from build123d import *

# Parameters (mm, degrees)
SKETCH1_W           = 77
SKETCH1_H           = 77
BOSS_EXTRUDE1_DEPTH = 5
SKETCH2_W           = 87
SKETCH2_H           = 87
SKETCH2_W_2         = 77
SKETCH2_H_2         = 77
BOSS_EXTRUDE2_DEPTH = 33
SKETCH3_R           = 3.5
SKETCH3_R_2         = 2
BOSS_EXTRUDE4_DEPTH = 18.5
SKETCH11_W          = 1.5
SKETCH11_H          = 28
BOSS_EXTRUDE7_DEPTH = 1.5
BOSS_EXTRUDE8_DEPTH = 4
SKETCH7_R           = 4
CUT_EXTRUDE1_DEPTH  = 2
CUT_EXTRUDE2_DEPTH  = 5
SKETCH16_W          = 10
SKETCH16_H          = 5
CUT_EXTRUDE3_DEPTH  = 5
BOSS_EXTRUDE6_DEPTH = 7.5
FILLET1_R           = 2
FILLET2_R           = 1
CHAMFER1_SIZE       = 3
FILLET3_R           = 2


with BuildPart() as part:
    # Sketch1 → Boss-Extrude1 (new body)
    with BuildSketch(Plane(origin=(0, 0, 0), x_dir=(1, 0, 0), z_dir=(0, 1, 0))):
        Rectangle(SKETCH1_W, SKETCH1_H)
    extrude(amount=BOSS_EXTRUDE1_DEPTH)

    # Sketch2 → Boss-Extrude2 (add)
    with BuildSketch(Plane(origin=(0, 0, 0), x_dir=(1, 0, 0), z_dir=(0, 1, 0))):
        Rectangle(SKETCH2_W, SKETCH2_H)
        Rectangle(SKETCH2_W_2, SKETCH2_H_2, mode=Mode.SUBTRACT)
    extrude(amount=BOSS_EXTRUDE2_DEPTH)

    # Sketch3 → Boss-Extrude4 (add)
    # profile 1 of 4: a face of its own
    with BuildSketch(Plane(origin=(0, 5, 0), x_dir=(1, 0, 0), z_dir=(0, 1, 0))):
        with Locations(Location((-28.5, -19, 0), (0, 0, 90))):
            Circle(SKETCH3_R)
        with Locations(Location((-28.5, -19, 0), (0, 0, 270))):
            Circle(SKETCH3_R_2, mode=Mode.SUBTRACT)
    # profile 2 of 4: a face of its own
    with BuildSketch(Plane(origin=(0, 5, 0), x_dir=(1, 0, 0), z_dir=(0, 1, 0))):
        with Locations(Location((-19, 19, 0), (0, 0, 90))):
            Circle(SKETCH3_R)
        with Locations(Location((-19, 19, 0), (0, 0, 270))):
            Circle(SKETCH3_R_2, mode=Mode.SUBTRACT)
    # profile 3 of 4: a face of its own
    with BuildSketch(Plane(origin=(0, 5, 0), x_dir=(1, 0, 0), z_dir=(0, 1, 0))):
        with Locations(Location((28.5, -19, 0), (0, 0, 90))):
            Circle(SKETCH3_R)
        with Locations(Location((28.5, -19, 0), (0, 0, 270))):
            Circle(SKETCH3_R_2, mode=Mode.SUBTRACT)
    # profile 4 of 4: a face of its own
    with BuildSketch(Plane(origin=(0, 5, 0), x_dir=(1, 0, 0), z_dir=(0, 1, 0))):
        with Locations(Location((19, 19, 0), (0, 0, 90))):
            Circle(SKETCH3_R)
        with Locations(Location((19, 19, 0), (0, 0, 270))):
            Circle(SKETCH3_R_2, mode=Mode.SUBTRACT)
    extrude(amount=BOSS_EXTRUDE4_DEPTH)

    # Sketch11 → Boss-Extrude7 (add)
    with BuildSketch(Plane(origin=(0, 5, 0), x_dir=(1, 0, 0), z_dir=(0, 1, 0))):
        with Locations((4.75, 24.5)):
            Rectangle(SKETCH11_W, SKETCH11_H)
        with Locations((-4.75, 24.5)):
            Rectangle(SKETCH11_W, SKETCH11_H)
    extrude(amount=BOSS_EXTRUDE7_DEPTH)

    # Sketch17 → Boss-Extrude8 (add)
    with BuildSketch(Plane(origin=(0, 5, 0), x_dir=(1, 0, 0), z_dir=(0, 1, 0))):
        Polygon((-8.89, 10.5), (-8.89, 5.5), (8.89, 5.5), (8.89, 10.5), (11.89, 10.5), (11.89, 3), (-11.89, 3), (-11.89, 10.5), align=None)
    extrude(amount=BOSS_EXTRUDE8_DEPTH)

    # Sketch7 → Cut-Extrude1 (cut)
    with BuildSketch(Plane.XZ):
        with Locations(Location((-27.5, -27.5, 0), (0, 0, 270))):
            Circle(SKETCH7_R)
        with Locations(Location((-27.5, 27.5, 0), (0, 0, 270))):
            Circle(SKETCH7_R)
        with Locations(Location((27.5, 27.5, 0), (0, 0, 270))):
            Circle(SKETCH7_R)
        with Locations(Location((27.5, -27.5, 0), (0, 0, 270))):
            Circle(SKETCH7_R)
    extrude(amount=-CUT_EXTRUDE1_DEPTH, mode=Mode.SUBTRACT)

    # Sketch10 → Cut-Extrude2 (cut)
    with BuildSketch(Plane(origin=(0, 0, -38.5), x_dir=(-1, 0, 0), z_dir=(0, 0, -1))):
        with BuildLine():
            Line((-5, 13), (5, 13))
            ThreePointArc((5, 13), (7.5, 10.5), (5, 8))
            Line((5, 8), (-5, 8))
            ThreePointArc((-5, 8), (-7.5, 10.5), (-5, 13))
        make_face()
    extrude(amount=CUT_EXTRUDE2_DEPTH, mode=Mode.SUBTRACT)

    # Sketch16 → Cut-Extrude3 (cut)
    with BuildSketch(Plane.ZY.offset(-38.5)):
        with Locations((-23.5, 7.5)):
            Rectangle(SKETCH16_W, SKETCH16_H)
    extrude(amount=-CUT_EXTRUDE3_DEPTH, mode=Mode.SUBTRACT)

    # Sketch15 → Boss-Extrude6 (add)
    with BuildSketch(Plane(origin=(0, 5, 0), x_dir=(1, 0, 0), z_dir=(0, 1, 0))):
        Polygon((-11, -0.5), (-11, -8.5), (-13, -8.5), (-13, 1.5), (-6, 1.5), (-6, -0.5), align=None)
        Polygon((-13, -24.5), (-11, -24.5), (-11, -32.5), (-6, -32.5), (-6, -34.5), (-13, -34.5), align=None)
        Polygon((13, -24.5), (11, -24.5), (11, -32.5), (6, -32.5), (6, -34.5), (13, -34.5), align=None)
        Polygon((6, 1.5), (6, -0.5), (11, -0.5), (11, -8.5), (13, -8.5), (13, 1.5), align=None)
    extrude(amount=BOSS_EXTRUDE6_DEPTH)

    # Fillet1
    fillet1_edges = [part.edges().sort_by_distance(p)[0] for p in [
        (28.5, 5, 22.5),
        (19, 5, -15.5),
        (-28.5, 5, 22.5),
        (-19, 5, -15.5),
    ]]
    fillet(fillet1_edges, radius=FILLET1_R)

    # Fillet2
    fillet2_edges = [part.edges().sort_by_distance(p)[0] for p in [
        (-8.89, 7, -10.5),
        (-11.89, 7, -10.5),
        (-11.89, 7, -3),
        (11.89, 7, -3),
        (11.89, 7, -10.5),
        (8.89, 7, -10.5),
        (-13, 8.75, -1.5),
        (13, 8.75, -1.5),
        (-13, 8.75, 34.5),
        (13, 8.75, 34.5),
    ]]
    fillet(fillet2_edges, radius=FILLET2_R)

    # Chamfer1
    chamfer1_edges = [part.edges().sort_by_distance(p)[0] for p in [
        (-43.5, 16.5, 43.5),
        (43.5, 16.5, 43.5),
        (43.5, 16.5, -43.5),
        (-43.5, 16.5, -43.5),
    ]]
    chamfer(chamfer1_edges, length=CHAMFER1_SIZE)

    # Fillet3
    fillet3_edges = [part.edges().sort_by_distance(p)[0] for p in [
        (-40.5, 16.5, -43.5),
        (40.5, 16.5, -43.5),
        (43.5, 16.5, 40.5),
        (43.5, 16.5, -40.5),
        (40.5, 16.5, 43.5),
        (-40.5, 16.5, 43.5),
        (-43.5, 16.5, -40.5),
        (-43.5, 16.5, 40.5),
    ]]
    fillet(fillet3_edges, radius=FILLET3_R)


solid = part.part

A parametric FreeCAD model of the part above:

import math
import FreeCAD as App
import Part
import Sketcher

V = App.Vector
Q = App.Units.Quantity


def edges_at(feature, points):
    """Names of the edges that pass closest to the given points."""
    edges = feature.Shape.Edges
    near = lambda p: min(range(len(edges)), key=lambda i: edges[i].distToShape(Part.Vertex(*p))[0])
    return sorted({f"Edge{near(p) + 1}" for p in points})


def add_polygon(sketch, points):
    """Adds a closed chain of lines whose ends are joined by coincident constraints."""
    first, n = sketch.GeometryCount, len(points)
    for a, b in zip(points, points[1:] + points[:1]):
        sketch.addGeometry(Part.LineSegment(App.Vector(*a, 0), App.Vector(*b, 0)), False)
    for i in range(n):
        sketch.addConstraint(Sketcher.Constraint("Coincident", first + i, 2, first + (i + 1) % n, 1))

doc = App.newDocument("Part")
body = doc.addObject("PartDesign::Body", "Body")

# Sketch on XZ plane
sketch1 = body.newObject("Sketcher::SketchObject", "Sketch")
sketch1.AttachmentSupport = (doc.getObject("XZ_Plane"), [""])
sketch1.MapMode = "FlatFace"
add_polygon(sketch1, [(-38.5, -38.5), (-38.5, 38.5), (38.5, 38.5), (38.5, -38.5)])  # lines 0-3
sketch1.addConstraint([
    Sketcher.Constraint("Vertical", 0),
    Sketcher.Constraint("Horizontal", 1),
    Sketcher.Constraint("Vertical", 2),
    Sketcher.Constraint("Horizontal", 3),
    Sketcher.Constraint("Symmetric", 0, 2, 2, 2, -1, 1),
    Sketcher.Constraint("Equal", 3, 0),
    Sketcher.Constraint("DistanceX", 1, 1, 1, 2, Q("77 mm")),
])
pad1 = body.newObject("PartDesign::Pad", "Pad")
pad1.Profile = sketch1
pad1.Length = 5
pad1.Reversed = True

# Sketch on XZ plane
sketch2 = body.newObject("Sketcher::SketchObject", "Sketch001")
sketch2.AttachmentSupport = (doc.getObject("XZ_Plane"), [""])
sketch2.MapMode = "FlatFace"
add_polygon(sketch2, [(-43.5, -43.5), (-43.5, 43.5), (43.5, 43.5), (43.5, -43.5)])  # lines 0-3
add_polygon(sketch2, [(38.5, 38.5), (-38.5, 38.5), (-38.5, -38.5), (38.5, -38.5)])  # lines 4-7
sketch2.addConstraint([
    Sketcher.Constraint("Vertical", 0),
    Sketcher.Constraint("Horizontal", 1),
    Sketcher.Constraint("Vertical", 2),
    Sketcher.Constraint("Horizontal", 3),
    Sketcher.Constraint("Horizontal", 4),
    Sketcher.Constraint("Vertical", 5),
    Sketcher.Constraint("Horizontal", 6),
    Sketcher.Constraint("Vertical", 7),
    Sketcher.Constraint("Symmetric", 0, 2, 2, 2, -1, 1),
    Sketcher.Constraint("Symmetric", 4, 2, 6, 2, -1, 1),
    Sketcher.Constraint("Equal", 3, 0),
    Sketcher.Constraint("Equal", 6, 5),
    Sketcher.Constraint("DistanceX", 1, 1, 1, 2, Q("87 mm")),
    Sketcher.Constraint("DistanceX", 4, 2, 4, 1, Q("77 mm")),
])
pad2 = body.newObject("PartDesign::Pad", "Pad001")
pad2.Profile = sketch2
pad2.Length = 33
pad2.Reversed = True

# Sketch on XZ plane
sketch3 = body.newObject("Sketcher::SketchObject", "Sketch002")
sketch3.AttachmentSupport = (doc.getObject("XZ_Plane"), [""])
sketch3.MapMode = "FlatFace"
sketch3.AttachmentOffset = App.Placement(V(0, 0, -5), App.Rotation())
sketch3.addGeometry([
    Part.Circle(V(-28.5, 19, 0), V(0, 0, 1), 3.5),  # 0
    Part.Circle(V(-28.5, 19, 0), V(0, 0, 1), 2),  # 1
    Part.Circle(V(-19, -19, 0), V(0, 0, 1), 3.5),  # 2
    Part.Circle(V(-19, -19, 0), V(0, 0, 1), 2),  # 3
    Part.Circle(V(28.5, 19, 0), V(0, 0, 1), 3.5),  # 4
    Part.Circle(V(28.5, 19, 0), V(0, 0, 1), 2),  # 5
    Part.Circle(V(19, -19, 0), V(0, 0, 1), 3.5),  # 6
    Part.Circle(V(19, -19, 0), V(0, 0, 1), 2),  # 7
], False)
sketch3.addConstraint([
    Sketcher.Constraint("Coincident", 1, 3, 0, 3),
    Sketcher.Constraint("Coincident", 3, 3, 2, 3),
    Sketcher.Constraint("Coincident", 5, 3, 4, 3),
    Sketcher.Constraint("Coincident", 7, 3, 6, 3),
    Sketcher.Constraint("Equal", 0, 2),
    Sketcher.Constraint("Equal", 1, 3),
    Sketcher.Constraint("Equal", 2, 4),
    Sketcher.Constraint("Equal", 3, 5),
    Sketcher.Constraint("Equal", 4, 6),
    Sketcher.Constraint("Equal", 5, 7),
    Sketcher.Constraint("Symmetric", 0, 3, 4, 3, -2),
    Sketcher.Constraint("Symmetric", 2, 3, 6, 3, -2),
    Sketcher.Constraint("Diameter", 0, Q("7 mm")),
    Sketcher.Constraint("Diameter", 1, Q("4 mm")),
    Sketcher.Constraint("DistanceY", -1, 1, 0, 3, Q("19 mm")),
    Sketcher.Constraint("DistanceX", 2, 3, -1, 1, Q("19 mm")),
    Sketcher.Constraint("DistanceY", 2, 3, -1, 1, Q("19 mm")),
    Sketcher.Constraint("DistanceX", 0, 3, 4, 3, Q("57 mm")),
])
pad3 = body.newObject("PartDesign::Pad", "Pad002")
pad3.Profile = sketch3
pad3.Length = 18.5
pad3.Reversed = True

# Sketch on XZ plane
sketch4 = body.newObject("Sketcher::SketchObject", "Sketch003")
sketch4.AttachmentSupport = (doc.getObject("XZ_Plane"), [""])
sketch4.MapMode = "FlatFace"
sketch4.AttachmentOffset = App.Placement(V(0, 0, -5), App.Rotation())
add_polygon(sketch4, [(4, -38.5), (4, -10.5), (5.5, -10.5), (5.5, -38.5)])  # lines 0-3
add_polygon(sketch4, [(-5.5, -38.5), (-5.5, -10.5), (-4, -10.5), (-4, -38.5)])  # lines 4-7
sketch4.addConstraint([
    Sketcher.Constraint("Vertical", 0),
    Sketcher.Constraint("Horizontal", 1),
    Sketcher.Constraint("Vertical", 2),
    Sketcher.Constraint("Horizontal", 3),
    Sketcher.Constraint("Vertical", 4),
    Sketcher.Constraint("Horizontal", 5),
    Sketcher.Constraint("Vertical", 6),
    Sketcher.Constraint("Horizontal", 7),
    Sketcher.Constraint("Symmetric", 1, 2, 4, 2, -2),
    Sketcher.Constraint("Symmetric", 3, 2, 6, 2, -2),
    Sketcher.Constraint("DistanceY", 0, 1, 0, 2, Q("28 mm")),
    Sketcher.Constraint("DistanceX", 1, 1, 1, 2, Q("1.5 mm")),
    Sketcher.Constraint("DistanceX", -1, 1, 0, 2, Q("4 mm")),
    Sketcher.Constraint("DistanceY", 0, 2, -1, 1, Q("10.5 mm")),
])
pad4 = body.newObject("PartDesign::Pad", "Pad003")
pad4.Profile = sketch4
pad4.Length = 1.5
pad4.Reversed = True

# Sketch on XZ plane
sketch5 = body.newObject("Sketcher::SketchObject", "Sketch004")
sketch5.AttachmentSupport = (doc.getObject("XZ_Plane"), [""])
sketch5.MapMode = "FlatFace"
sketch5.AttachmentOffset = App.Placement(V(0, 0, -5), App.Rotation())
add_polygon(sketch5, [(-8.89, -5.5), (-8.89, -10.5), (-11.89, -10.5), (-11.89, -3), (11.89, -3), (11.89, -10.5), (8.89, -10.5), (8.89, -5.5)])  # lines 0-7
sketch5.addConstraint([
    Sketcher.Constraint("Vertical", 0),
    Sketcher.Constraint("Horizontal", 1),
    Sketcher.Constraint("Vertical", 2),
    Sketcher.Constraint("Horizontal", 3),
    Sketcher.Constraint("Vertical", 4),
    Sketcher.Constraint("Horizontal", 5),
    Sketcher.Constraint("Vertical", 6),
    Sketcher.Constraint("Horizontal", 7),
    Sketcher.Constraint("Symmetric", 1, 2, 4, 2, -2),
    Sketcher.Constraint("Equal", 1, 5),
    Sketcher.Constraint("DistanceX", 1, 2, 1, 1, Q("3 mm")),
    Sketcher.Constraint("DistanceY", 0, 2, 0, 1, Q("5 mm")),
    Sketcher.Constraint("DistanceY", 2, 1, 2, 2, Q("7.5 mm")),
    Sketcher.Constraint("DistanceY", 2, 2, -1, 1, Q("3 mm")),
    Sketcher.Constraint("DistanceX", 3, 1, 3, 2, Q("23.78 mm")),
])
pad5 = body.newObject("PartDesign::Pad", "Pad004")
pad5.Profile = sketch5
pad5.Length = 4
pad5.Reversed = True

# Sketch on XZ plane
sketch6 = body.newObject("Sketcher::SketchObject", "Sketch005")
sketch6.AttachmentSupport = (doc.getObject("XZ_Plane"), [""])
sketch6.MapMode = "FlatFace"
sketch6.addGeometry([
    Part.Circle(V(-27.5, -27.5, 0), V(0, 0, 1), 4),
    Part.Circle(V(-27.5, 27.5, 0), V(0, 0, 1), 4),
    Part.Circle(V(27.5, 27.5, 0), V(0, 0, 1), 4),
    Part.Circle(V(27.5, -27.5, 0), V(0, 0, 1), 4),
], False)
sketch6.addConstraint([
    Sketcher.Constraint("Equal", 0, 1),
    Sketcher.Constraint("Equal", 1, 2),
    Sketcher.Constraint("Equal", 2, 3),
    Sketcher.Constraint("Symmetric", 0, 3, 2, 3, -1, 1),
    Sketcher.Constraint("Symmetric", 1, 3, 3, 3, -1, 1),
    Sketcher.Constraint("Symmetric", 1, 3, 2, 3, -2),
    Sketcher.Constraint("Diameter", 0, Q("8 mm")),
    Sketcher.Constraint("DistanceY", 0, 3, 1, 3, Q("55 mm")),
    Sketcher.Constraint("DistanceX", 1, 3, 2, 3, Q("55 mm")),
])
pocket1 = body.newObject("PartDesign::Pocket", "Pocket")
pocket1.Profile = sketch6
pocket1.Length = 2

# Sketch on XY plane
sketch7 = body.newObject("Sketcher::SketchObject", "Sketch006")
sketch7.AttachmentSupport = (doc.getObject("XY_Plane"), [""])
sketch7.MapMode = "FlatFace"
sketch7.AttachmentOffset = App.Placement(V(0, 0, -38.5), App.Rotation())
sketch7.addGeometry([
    Part.LineSegment(V(-5, 13, 0), V(5, 13, 0)),
    Part.ArcOfCircle(Part.Circle(V(5, 10.5, 0), V(0, 0, 1), 2.5), math.radians(-90), math.radians(90)),
    Part.LineSegment(V(5, 8, 0), V(-5, 8, 0)),
    Part.ArcOfCircle(Part.Circle(V(-5, 10.5, 0), V(0, 0, 1), 2.5), math.radians(90), math.radians(270)),
], False)
sketch7.addConstraint([
    Sketcher.Constraint("Tangent", 0, 2, 1, 2),
    Sketcher.Constraint("Tangent", 1, 1, 2, 1),
    Sketcher.Constraint("Tangent", 2, 2, 3, 2),
    Sketcher.Constraint("Tangent", 3, 1, 0, 1),
    Sketcher.Constraint("Horizontal", 0),
    Sketcher.Constraint("Horizontal", 2),
    Sketcher.Constraint("Radius", 1, Q("2.5 mm")),
    Sketcher.Constraint("DistanceX", 0, 1, 0, 2, Q("10 mm")),
    Sketcher.Constraint("DistanceX", -1, 1, 1, 3, Q("5 mm")),
    Sketcher.Constraint("DistanceY", -1, 1, 0, 2, Q("13 mm")),
])
pocket2 = body.newObject("PartDesign::Pocket", "Pocket001")
pocket2.Profile = sketch7
pocket2.Length = 5

# Sketch on YZ plane
sketch8 = body.newObject("Sketcher::SketchObject", "Sketch007")
sketch8.AttachmentSupport = (doc.getObject("YZ_Plane"), [""])
sketch8.MapMode = "FlatFace"
sketch8.AttachmentOffset = App.Placement(V(0, 0, 38.5), App.Rotation())
add_polygon(sketch8, [(10, -28.5), (5, -28.5), (5, -18.5), (10, -18.5)])  # lines 0-3
sketch8.addConstraint([
    Sketcher.Constraint("Horizontal", 0),
    Sketcher.Constraint("Vertical", 1),
    Sketcher.Constraint("Horizontal", 2),
    Sketcher.Constraint("Vertical", 3),
    Sketcher.Constraint("DistanceX", 0, 2, 0, 1, Q("5 mm")),
    Sketcher.Constraint("DistanceY", 1, 1, 1, 2, Q("10 mm")),
    Sketcher.Constraint("DistanceX", -1, 1, 0, 2, Q("5 mm")),
    Sketcher.Constraint("DistanceY", 0, 2, -1, 1, Q("28.5 mm")),
])
pocket3 = body.newObject("PartDesign::Pocket", "Pocket002")
pocket3.Profile = sketch8
pocket3.Length = 5
pocket3.Reversed = True

# Sketch on XZ plane
sketch9 = body.newObject("Sketcher::SketchObject", "Sketch008")
sketch9.AttachmentSupport = (doc.getObject("XZ_Plane"), [""])
sketch9.MapMode = "FlatFace"
sketch9.AttachmentOffset = App.Placement(V(0, 0, -5), App.Rotation())
add_polygon(sketch9, [(-11, 8.5), (-11, 0.5), (-6, 0.5), (-6, -1.5), (-13, -1.5), (-13, 8.5)])  # lines 0-5
add_polygon(sketch9, [(-11, 24.5), (-13, 24.5), (-13, 34.5), (-6, 34.5), (-6, 32.5), (-11, 32.5)])  # lines 6-11
add_polygon(sketch9, [(13, 24.5), (11, 24.5), (11, 32.5), (6, 32.5), (6, 34.5), (13, 34.5)])  # lines 12-17
add_polygon(sketch9, [(6, -1.5), (6, 0.5), (11, 0.5), (11, 8.5), (13, 8.5), (13, -1.5)])  # lines 18-23
sketch9.addConstraint([
    Sketcher.Constraint("Vertical", 0),
    Sketcher.Constraint("Horizontal", 1),
    Sketcher.Constraint("Vertical", 2),
    Sketcher.Constraint("Horizontal", 3),
    Sketcher.Constraint("Vertical", 4),
    Sketcher.Constraint("Horizontal", 5),
    Sketcher.Constraint("Horizontal", 6),
    Sketcher.Constraint("Vertical", 7),
    Sketcher.Constraint("Horizontal", 8),
    Sketcher.Constraint("Vertical", 9),
    Sketcher.Constraint("Horizontal", 10),
    Sketcher.Constraint("Vertical", 11),
    Sketcher.Constraint("Horizontal", 12),
    Sketcher.Constraint("Vertical", 13),
    Sketcher.Constraint("Horizontal", 14),
    Sketcher.Constraint("Vertical", 15),
    Sketcher.Constraint("Horizontal", 16),
    Sketcher.Constraint("Vertical", 17),
    Sketcher.Constraint("Vertical", 18),
    Sketcher.Constraint("Horizontal", 19),
    Sketcher.Constraint("Vertical", 20),
    Sketcher.Constraint("Horizontal", 21),
    Sketcher.Constraint("Vertical", 22),
    Sketcher.Constraint("Horizontal", 23),
    Sketcher.Constraint("Symmetric", 11, 2, 12, 2, -2),
    Sketcher.Constraint("Symmetric", 9, 2, 14, 2, -2),
    Sketcher.Constraint("Symmetric", 7, 2, 16, 2, -2),
    Sketcher.Constraint("Symmetric", 1, 2, 18, 2, -2),
    Sketcher.Constraint("Symmetric", 5, 2, 20, 2, -2),
    Sketcher.Constraint("Symmetric", 3, 2, 22, 2, -2),
    Sketcher.Constraint("Vertical", 4, 2, 6, 2),
    Sketcher.Constraint("Vertical", 2, 2, 8, 2),
    Sketcher.Constraint("Vertical", 5, 2, 10, 2),
    Sketcher.Constraint("Equal", 21, 2),
    Sketcher.Constraint("Equal", 4, 7),
    Sketcher.Constraint("Equal", 2, 9),
    Sketcher.Constraint("DistanceX", 1, 1, 1, 2, Q("5 mm")),
    Sketcher.Constraint("DistanceX", 3, 2, 3, 1, Q("7 mm")),
    Sketcher.Constraint("DistanceY", 0, 2, 0, 1, Q("8 mm")),
    Sketcher.Constraint("DistanceX", 0, 2, -1, 1, Q("11 mm")),
    Sketcher.Constraint("DistanceY", 4, 2, 6, 2, Q("16 mm")),
    Sketcher.Constraint("DistanceY", -1, 1, 0, 2, Q("0.5 mm")),
])
pad6 = body.newObject("PartDesign::Pad", "Pad005")
pad6.Profile = sketch9
pad6.Length = 7.5
pad6.Reversed = True
doc.recompute()

fillet = body.newObject("PartDesign::Fillet", "Fillet")
fillet.Base = (pad6, edges_at(pad6, [
    (28.5, 5, 22.5),
    (19, 5, -15.5),
    (-28.5, 5, 22.5),
    (-19, 5, -15.5),
]))
fillet.Radius = 2
doc.recompute()

fillet2 = body.newObject("PartDesign::Fillet", "Fillet001")
fillet2.Base = (fillet, edges_at(fillet, [
    (-8.89, 7, -10.5),
    (-11.89, 7, -10.5),
    (-11.89, 7, -3),
    (11.89, 7, -3),
    (11.89, 7, -10.5),
    (8.89, 7, -10.5),
    (-13, 8.75, -1.5),
    (13, 8.75, -1.5),
    (-13, 8.75, 34.5),
    (13, 8.75, 34.5),
]))
fillet2.Radius = 1
doc.recompute()

chamfer = body.newObject("PartDesign::Chamfer", "Chamfer")
chamfer.Base = (fillet2, edges_at(fillet2, [
    (-43.5, 16.5, 43.5),
    (43.5, 16.5, 43.5),
    (43.5, 16.5, -43.5),
    (-43.5, 16.5, -43.5),
]))
chamfer.Size = 3
doc.recompute()

fillet3 = body.newObject("PartDesign::Fillet", "Fillet002")
fillet3.Base = (chamfer, edges_at(chamfer, [
    (-40.5, 16.5, -43.5),
    (40.5, 16.5, -43.5),
    (43.5, 16.5, 40.5),
    (43.5, 16.5, -40.5),
    (40.5, 16.5, 43.5),
    (-40.5, 16.5, 43.5),
    (-43.5, 16.5, -40.5),
    (-43.5, 16.5, 40.5),
]))
fillet3.Radius = 2

doc.recompute()
